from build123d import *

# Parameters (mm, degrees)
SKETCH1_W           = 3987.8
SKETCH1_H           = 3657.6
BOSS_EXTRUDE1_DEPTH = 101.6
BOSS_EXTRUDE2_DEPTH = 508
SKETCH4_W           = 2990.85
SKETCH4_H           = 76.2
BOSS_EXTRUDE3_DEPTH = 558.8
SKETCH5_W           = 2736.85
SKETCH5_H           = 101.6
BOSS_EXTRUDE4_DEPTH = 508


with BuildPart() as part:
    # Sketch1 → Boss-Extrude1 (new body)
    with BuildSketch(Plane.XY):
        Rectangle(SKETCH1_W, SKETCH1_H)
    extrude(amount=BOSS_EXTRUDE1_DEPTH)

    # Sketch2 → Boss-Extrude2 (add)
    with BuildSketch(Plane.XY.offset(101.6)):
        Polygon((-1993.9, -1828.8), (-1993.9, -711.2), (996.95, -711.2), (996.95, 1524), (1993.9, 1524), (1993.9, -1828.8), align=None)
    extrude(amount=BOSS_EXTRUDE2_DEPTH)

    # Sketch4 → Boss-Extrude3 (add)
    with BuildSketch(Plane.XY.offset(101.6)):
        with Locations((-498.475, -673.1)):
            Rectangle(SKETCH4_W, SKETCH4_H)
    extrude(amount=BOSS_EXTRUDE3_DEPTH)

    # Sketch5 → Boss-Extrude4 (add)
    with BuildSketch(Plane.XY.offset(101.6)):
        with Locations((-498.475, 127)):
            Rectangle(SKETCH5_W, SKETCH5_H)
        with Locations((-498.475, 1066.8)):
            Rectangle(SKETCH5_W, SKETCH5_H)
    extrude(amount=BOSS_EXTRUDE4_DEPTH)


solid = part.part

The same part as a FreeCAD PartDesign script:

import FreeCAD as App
import Part
import Sketcher
from FreeCAD import Vector
Q = App.Units.Quantity


def add_polygon(sketch, points):
    """Adds a closed chain of lines whose ends are joined by coincident constraints."""
    first, n = sketch.GeometryCount, len(points)
    for a, b in zip(points, points[1:] + points[:1]):
        sketch.addGeometry(Part.LineSegment(App.Vector(*a, 0), App.Vector(*b, 0)), False)
    for i in range(n):
        sketch.addConstraint(Sketcher.Constraint("Coincident", first + i, 2, first + (i + 1) % n, 1))

doc = App.newDocument("Part")
body = doc.addObject("PartDesign::Body", "Body")

sketch1 = body.newObject("Sketcher::SketchObject", "Sketch")
sketch1.AttachmentSupport = (doc.getObject("XY_Plane"), [""])
sketch1.MapMode = "FlatFace"
add_polygon(sketch1, [(-1994, 1829), (-1994, -1829), (1994, -1829), (1994, 1829)])
sketch1.addConstraint([
    Sketcher.Constraint("Vertical", 0),
    Sketcher.Constraint("Horizontal", 1),
    Sketcher.Constraint("Vertical", 2),
    Sketcher.Constraint("Horizontal", 3),
    Sketcher.Constraint("Symmetric", 0, 2, 2, 2, -1, 1),
    Sketcher.Constraint("DistanceX", 1, 1, 1, 2, Q("157 in")),
    Sketcher.Constraint("DistanceY", 0, 2, 0, 1, Q("144 in")),
])
pad1 = body.newObject("PartDesign::Pad", "Pad")
pad1.Profile = sketch1
pad1.Length = Q("4 in")

sketch2 = body.newObject("Sketcher::SketchObject", "Sketch001")
sketch2.AttachmentSupport = (doc.getObject("XY_Plane"), [""])
sketch2.MapMode = "FlatFace"
sketch2.AttachmentOffset = App.Placement(Vector(0, 0, 4 * 25.4), App.Rotation())
add_polygon(sketch2, [(-1994, -711), (-1994, -1829), (1994, -1829), (1994, 1524), (997, 1524), (997, -711)])
sketch2.addConstraint([
    Sketcher.Constraint("Vertical", 0),
    Sketcher.Constraint("Horizontal", 1),
    Sketcher.Constraint("Vertical", 2),
    Sketcher.Constraint("Horizontal", 3),
    Sketcher.Constraint("Vertical", 4),
    Sketcher.Constraint("Horizontal", 5),
    Sketcher.Constraint("DistanceX", 1, 1, 1, 2, Q("157 in")),
    Sketcher.Constraint("DistanceY", 0, 2, 0, 1, Q("44 in")),
    Sketcher.Constraint("DistanceY", 2, 1, 2, 2, Q("132 in")),
    Sketcher.Constraint("DistanceY", 0, 2, -1, 1, Q("72 in")),
    Sketcher.Constraint("DistanceX", 3, 2, 3, 1, Q("39.25 in")),
    Sketcher.Constraint("DistanceX", 0, 2, -1, 1, Q("78.5 in")),
])
pad2 = body.newObject("PartDesign::Pad", "Pad001")
pad2.Profile = sketch2
pad2.Length = Q("20 in")

sketch3 = body.newObject("Sketcher::SketchObject", "Sketch002")
sketch3.AttachmentSupport = (doc.getObject("XY_Plane"), [""])
sketch3.MapMode = "FlatFace"
sketch3.AttachmentOffset = App.Placement(Vector(0, 0, 4 * 25.4), App.Rotation())
add_polygon(sketch3, [(-1994, -635), (-1994, -711), (997, -711), (997, -635)])
sketch3.addConstraint([
    Sketcher.Constraint("Vertical", 0),
    Sketcher.Constraint("Horizontal", 1),
    Sketcher.Constraint("Vertical", 2),
    Sketcher.Constraint("Horizontal", 3),
    Sketcher.Constraint("DistanceY", 0, 2, 0, 1, Q("3 in")),
    Sketcher.Constraint("DistanceY", 0, 2, -1, 1, Q("28 in")),
    Sketcher.Constraint("DistanceX", 1, 1, 1, 2, Q("117.75 in")),
    Sketcher.Constraint("DistanceX", 0, 2, -1, 1, Q("78.5 in")),
])
pad3 = body.newObject("PartDesign::Pad", "Pad002")
pad3.Profile = sketch3
pad3.Length = Q("22 in")

sketch4 = body.newObject("Sketcher::SketchObject", "Sketch003")
sketch4.AttachmentSupport = (doc.getObject("XY_Plane"), [""])
sketch4.MapMode = "FlatFace"
sketch4.AttachmentOffset = App.Placement(Vector(0, 0, 4 * 25.4), App.Rotation())
add_polygon(sketch4, [(-1867, 178), (-1867, 76), (870, 76), (870, 178)])
add_polygon(sketch4, [(-1867, 1118), (-1867, 1016), (870, 1016), (870, 1118)])
sketch4.addConstraint([
    Sketcher.Constraint("Vertical", 0),
    Sketcher.Constraint("Horizontal", 1),
    Sketcher.Constraint("Vertical", 2),
    Sketcher.Constraint("Horizontal", 3),
    Sketcher.Constraint("Vertical", 4),
    Sketcher.Constraint("Horizontal", 5),
    Sketcher.Constraint("Vertical", 6),
    Sketcher.Constraint("Horizontal", 7),
    Sketcher.Constraint("Vertical", 3, 2, 4, 2),
    Sketcher.Constraint("Vertical", 2, 2, 5, 2),
    Sketcher.Constraint("Equal", 2, 4),
    Sketcher.Constraint("DistanceY", 0, 2, 0, 1, Q("4 in")),
    Sketcher.Constraint("DistanceY", -1, 1, 0, 2, Q("3 in")),
    Sketcher.Constraint("DistanceY", -1, 1, 4, 2, Q("40 in")),
    Sketcher.Constraint("DistanceX", 1, 1, 1, 2, Q("107.75 in")),
    Sketcher.Constraint("DistanceX", 0, 2, -1, 1, Q("73.5 in")),
])
pad4 = body.newObject("PartDesign::Pad", "Pad003")
pad4.Profile = sketch4
pad4.Length = Q("20 in")

doc.recompute()
